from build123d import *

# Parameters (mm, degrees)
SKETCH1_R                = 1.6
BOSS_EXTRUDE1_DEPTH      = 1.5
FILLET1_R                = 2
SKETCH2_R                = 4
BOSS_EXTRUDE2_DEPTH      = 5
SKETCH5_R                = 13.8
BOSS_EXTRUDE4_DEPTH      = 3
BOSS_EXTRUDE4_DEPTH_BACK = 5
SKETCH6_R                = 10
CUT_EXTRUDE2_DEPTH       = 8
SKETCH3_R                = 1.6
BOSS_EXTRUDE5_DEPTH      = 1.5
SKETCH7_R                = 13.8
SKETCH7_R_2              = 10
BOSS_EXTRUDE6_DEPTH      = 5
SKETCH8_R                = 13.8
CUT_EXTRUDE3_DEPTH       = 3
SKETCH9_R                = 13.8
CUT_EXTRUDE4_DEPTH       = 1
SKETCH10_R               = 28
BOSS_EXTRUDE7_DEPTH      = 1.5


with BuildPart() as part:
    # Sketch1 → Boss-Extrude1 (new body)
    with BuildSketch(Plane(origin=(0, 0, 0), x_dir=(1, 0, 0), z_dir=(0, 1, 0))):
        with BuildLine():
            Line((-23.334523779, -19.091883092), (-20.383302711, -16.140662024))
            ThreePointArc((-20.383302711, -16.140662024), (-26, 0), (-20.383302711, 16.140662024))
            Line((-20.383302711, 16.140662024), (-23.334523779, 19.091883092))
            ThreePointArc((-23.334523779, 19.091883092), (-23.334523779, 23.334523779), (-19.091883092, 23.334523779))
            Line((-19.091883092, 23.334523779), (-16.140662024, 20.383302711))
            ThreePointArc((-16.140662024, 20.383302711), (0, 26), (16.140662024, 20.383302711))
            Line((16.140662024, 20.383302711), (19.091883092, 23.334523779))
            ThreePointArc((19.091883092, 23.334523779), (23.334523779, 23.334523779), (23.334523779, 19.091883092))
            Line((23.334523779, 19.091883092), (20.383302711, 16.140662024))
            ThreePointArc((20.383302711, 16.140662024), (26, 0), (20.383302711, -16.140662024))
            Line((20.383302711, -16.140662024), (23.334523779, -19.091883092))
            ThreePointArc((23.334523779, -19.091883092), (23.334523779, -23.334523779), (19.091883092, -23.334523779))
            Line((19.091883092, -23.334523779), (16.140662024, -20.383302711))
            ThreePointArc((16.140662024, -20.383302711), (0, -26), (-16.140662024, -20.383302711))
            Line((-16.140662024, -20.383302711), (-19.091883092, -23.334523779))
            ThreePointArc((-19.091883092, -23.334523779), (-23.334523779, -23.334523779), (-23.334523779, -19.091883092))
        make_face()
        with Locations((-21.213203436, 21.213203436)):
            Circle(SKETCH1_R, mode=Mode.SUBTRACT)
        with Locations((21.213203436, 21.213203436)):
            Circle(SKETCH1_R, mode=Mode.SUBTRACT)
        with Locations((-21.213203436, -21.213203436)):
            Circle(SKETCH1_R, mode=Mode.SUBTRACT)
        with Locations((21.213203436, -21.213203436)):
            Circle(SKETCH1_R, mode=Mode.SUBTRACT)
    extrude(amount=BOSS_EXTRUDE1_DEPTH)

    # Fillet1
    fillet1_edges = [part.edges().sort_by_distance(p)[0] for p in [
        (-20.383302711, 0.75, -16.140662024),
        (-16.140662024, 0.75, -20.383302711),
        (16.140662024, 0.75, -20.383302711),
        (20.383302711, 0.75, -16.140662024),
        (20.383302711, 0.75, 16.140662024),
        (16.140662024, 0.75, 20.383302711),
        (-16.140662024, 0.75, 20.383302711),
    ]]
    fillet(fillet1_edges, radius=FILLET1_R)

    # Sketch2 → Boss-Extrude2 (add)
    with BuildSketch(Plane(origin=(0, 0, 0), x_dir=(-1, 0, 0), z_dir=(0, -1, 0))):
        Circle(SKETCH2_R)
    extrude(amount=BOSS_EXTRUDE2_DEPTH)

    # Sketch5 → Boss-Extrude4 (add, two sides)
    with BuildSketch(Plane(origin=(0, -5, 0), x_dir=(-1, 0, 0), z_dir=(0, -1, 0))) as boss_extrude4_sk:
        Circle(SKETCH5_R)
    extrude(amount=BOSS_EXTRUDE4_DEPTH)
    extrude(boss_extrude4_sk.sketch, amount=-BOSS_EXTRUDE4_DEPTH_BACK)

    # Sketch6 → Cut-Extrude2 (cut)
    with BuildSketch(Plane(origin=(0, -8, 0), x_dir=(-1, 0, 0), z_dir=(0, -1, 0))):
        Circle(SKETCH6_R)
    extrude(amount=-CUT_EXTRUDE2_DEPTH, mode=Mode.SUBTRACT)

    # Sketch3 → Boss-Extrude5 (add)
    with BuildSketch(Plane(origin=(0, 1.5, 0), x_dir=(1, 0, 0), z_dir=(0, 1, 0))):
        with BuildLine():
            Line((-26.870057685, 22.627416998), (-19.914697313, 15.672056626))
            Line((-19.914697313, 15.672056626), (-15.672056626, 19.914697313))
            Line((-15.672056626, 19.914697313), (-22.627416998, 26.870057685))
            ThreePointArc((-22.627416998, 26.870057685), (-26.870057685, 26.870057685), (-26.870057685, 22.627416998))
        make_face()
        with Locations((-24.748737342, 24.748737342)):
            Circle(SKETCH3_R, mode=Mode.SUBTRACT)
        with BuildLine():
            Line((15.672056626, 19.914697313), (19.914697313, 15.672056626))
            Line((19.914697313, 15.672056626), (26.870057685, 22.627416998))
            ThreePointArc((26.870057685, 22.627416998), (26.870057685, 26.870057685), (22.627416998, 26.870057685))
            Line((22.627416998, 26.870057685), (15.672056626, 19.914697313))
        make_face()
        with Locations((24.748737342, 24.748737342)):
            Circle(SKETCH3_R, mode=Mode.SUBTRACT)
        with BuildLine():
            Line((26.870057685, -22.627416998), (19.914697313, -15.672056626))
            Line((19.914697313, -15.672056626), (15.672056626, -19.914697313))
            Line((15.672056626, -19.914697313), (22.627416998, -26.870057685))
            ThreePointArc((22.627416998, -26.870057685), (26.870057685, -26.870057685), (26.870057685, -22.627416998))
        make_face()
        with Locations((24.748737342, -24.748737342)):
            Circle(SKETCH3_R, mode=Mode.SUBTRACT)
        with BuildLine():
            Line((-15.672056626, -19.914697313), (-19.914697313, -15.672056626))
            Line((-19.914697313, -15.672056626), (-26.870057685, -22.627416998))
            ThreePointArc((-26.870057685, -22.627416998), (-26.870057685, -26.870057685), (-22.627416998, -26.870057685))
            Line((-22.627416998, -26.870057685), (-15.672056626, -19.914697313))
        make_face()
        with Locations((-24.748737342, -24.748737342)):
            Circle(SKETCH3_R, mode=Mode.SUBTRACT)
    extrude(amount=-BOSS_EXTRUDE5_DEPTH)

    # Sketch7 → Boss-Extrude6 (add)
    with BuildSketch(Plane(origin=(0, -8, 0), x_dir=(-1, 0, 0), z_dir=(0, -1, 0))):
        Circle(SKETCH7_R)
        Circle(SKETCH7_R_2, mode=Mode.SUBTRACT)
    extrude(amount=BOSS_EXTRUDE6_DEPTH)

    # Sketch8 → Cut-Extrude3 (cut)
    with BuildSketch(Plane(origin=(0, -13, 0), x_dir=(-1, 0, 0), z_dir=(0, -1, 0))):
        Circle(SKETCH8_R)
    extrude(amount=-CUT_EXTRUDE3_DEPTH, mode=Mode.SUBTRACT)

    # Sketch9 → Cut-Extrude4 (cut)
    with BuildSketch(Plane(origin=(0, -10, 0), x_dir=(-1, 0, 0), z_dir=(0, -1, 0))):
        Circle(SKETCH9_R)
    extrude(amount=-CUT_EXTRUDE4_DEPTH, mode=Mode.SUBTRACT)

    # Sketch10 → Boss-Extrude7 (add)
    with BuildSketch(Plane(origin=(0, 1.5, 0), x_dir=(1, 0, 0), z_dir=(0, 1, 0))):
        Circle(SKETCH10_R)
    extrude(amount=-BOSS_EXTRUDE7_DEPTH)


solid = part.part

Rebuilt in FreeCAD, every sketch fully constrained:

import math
import FreeCAD as App
import Part
import Sketcher
from FreeCAD import Vector
Q = App.Units.Quantity


def edges_at(feature, points):
    """Names of the edges that pass closest to the given points."""
    edges = feature.Shape.Edges
    near = lambda p: min(range(len(edges)), key=lambda i: edges[i].distToShape(Part.Vertex(*p))[0])
    return sorted({f"Edge{near(p) + 1}" for p in points})

doc = App.newDocument("Part")
body = doc.addObject("PartDesign::Body", "Body")

# Sketch on XZ plane
sketch1 = body.newObject("Sketcher::SketchObject", "Sketch")
sketch1.AttachmentSupport = (doc.getObject("XZ_Plane"), [""])
sketch1.MapMode = "FlatFace"
sketch1.addGeometry([
    Part.LineSegment(Vector(-20.383303, 16.140662, 0), Vector(-23.334524, 19.091883, 0)),  # 0
    Part.ArcOfCircle(Part.Circle(Vector(-21.213203, 21.213203, 0), Vector(0, 0, 1), 3), math.radians(45), math.radians(225)),  # 1
    Part.LineSegment(Vector(-19.091883, 23.334524, 0), Vector(-16.140662, 20.383303, 0)),  # 2
    Part.ArcOfCircle(Part.Circle(Vector(0, 0, 0), Vector(0, 0, 1), 26), math.radians(51.62581), math.radians(128.37419)),  # 3
    Part.LineSegment(Vector(16.140662, 20.383303, 0), Vector(19.091883, 23.334524, 0)),  # 4
    Part.ArcOfCircle(Part.Circle(Vector(21.213203, 21.213203, 0), Vector(0, 0, 1), 3), math.radians(-45), math.radians(135)),  # 5
    Part.LineSegment(Vector(23.334524, 19.091883, 0), Vector(20.383303, 16.140662, 0)),  # 6
    Part.ArcOfCircle(Part.Circle(Vector(0, 0, 0), Vector(0, 0, 1), 26), math.radians(-38.37419), math.radians(38.37419)),  # 7
    Part.LineSegment(Vector(20.383303, -16.140662, 0), Vector(23.334524, -19.091883, 0)),  # 8
    Part.ArcOfCircle(Part.Circle(Vector(21.213203, -21.213203, 0), Vector(0, 0, 1), 3), math.radians(-135), math.radians(45)),  # 9
    Part.LineSegment(Vector(19.091883, -23.334524, 0), Vector(16.140662, -20.383303, 0)),  # 10
    Part.ArcOfCircle(Part.Circle(Vector(0, 0, 0), Vector(0, 0, 1), 26), math.radians(-128.37419), math.radians(-51.62581)),  # 11
    Part.LineSegment(Vector(-16.140662, -20.383303, 0), Vector(-19.091883, -23.334524, 0)),  # 12
    Part.ArcOfCircle(Part.Circle(Vector(-21.213203, -21.213203, 0), Vector(0, 0, 1), 3), math.radians(135), math.radians(315)),  # 13
    Part.LineSegment(Vector(-23.334524, -19.091883, 0), Vector(-20.383303, -16.140662, 0)),  # 14
    Part.ArcOfCircle(Part.Circle(Vector(0, 0, 0), Vector(0, 0, 1), 26), math.radians(141.62581), math.radians(218.37419)),  # 15
    Part.Circle(Vector(21.213203, 21.213203, 0), Vector(0, 0, 1), 1.6),  # 16
    Part.Circle(Vector(-21.213203, 21.213203, 0), Vector(0, 0, 1), 1.6),  # 17
    Part.Circle(Vector(21.213203, -21.213203, 0), Vector(0, 0, 1), 1.6),  # 18
    Part.Circle(Vector(-21.213203, -21.213203, 0), Vector(0, 0, 1), 1.6),  # 19
], False)
sketch1.addConstraint([
    Sketcher.Constraint("Tangent", 0, 2, 1, 2),
    Sketcher.Constraint("Tangent", 1, 1, 2, 1),
    Sketcher.Constraint("Coincident", 2, 2, 3, 2),
    Sketcher.Constraint("Coincident", 3, 1, 4, 1),
    Sketcher.Constraint("Tangent", 4, 2, 5, 2),
    Sketcher.Constraint("Tangent", 5, 1, 6, 1),
    Sketcher.Constraint("Coincident", 6, 2, 7, 2),
    Sketcher.Constraint("Coincident", 7, 1, 8, 1),
    Sketcher.Constraint("Tangent", 8, 2, 9, 2),
    Sketcher.Constraint("Tangent", 9, 1, 10, 1),
    Sketcher.Constraint("Coincident", 10, 2, 11, 2),
    Sketcher.Constraint("Coincident", 11, 1, 12, 1),
    Sketcher.Constraint("Tangent", 12, 2, 13, 2),
    Sketcher.Constraint("Tangent", 13, 1, 14, 1),
    Sketcher.Constraint("Coincident", 14, 2, 15, 2),
    Sketcher.Constraint("Coincident", 15, 1, 0, 1),
    Sketcher.Constraint("Coincident", 3, 3, -1, 1),
    Sketcher.Constraint("Coincident", 7, 3, -1, 1),
    Sketcher.Constraint("Coincident", 11, 3, -1, 1),
    Sketcher.Constraint("Coincident", 15, 3, -1, 1),
    Sketcher.Constraint("Coincident", 16, 3, 5, 3),
    Sketcher.Constraint("Coincident", 17, 3, 1, 3),
    Sketcher.Constraint("Coincident", 18, 3, 9, 3),
    Sketcher.Constraint("Coincident", 19, 3, 13, 3),
    Sketcher.Constraint("Equal", 1, 5),
    Sketcher.Constraint("Equal", 3, 7),
    Sketcher.Constraint("Equal", 5, 9),
    Sketcher.Constraint("Equal", 7, 11),
    Sketcher.Constraint("Equal", 9, 13),
    Sketcher.Constraint("Equal", 11, 15),
    Sketcher.Constraint("Equal", 16, 17),
    Sketcher.Constraint("Equal", 17, 18),
    Sketcher.Constraint("Equal", 18, 19),
    Sketcher.Constraint("Symmetric", 1, 3, 9, 3, -1, 1),
    Sketcher.Constraint("Symmetric", 5, 3, 13, 3, -1, 1),
    Sketcher.Constraint("Symmetric", 1, 3, 5, 3, -2),
    Sketcher.Constraint("Parallel", 0, 2),
    Sketcher.Constraint("Perpendicular", 2, 4),
    Sketcher.Constraint("Parallel", 4, 6),
    Sketcher.Constraint("Perpendicular", 6, 8),
    Sketcher.Constraint("Parallel", 8, 10),
    Sketcher.Constraint("Perpendicular", 10, 12),
    Sketcher.Constraint("Parallel", 12, 14),
    Sketcher.Constraint("Horizontal", 2, 2, 3, 1),
    Sketcher.Constraint("Equal", 0, 2),
    Sketcher.Constraint("Radius", 1, Q("3 mm")),
    Sketcher.Constraint("Radius", 3, Q("26 mm")),
    Sketcher.Constraint("Diameter", 16, Q("3.2 mm")),
    Sketcher.Constraint("DistanceY", 2, 2, 1, 3, Q("0.829901 mm")),
])
pad1 = body.newObject("PartDesign::Pad", "Pad")
pad1.Profile = sketch1
pad1.Length = 1.5
pad1.Reversed = True
doc.recompute()

fillet = body.newObject("PartDesign::Fillet", "Fillet")
fillet.Base = (pad1, edges_at(pad1, [
    (-20.383, 0.75, -16.141),
    (-16.141, 0.75, -20.383),
    (16.141, 0.75, -20.383),
    (20.383, 0.75, -16.141),
    (20.383, 0.75, 16.141),
    (16.141, 0.75, 20.383),
    (-16.141, 0.75, 20.383),
]))
fillet.Radius = 2

# Sketch on XZ plane
sketch2 = body.newObject("Sketcher::SketchObject", "Sketch001")
sketch2.AttachmentSupport = (doc.getObject("XZ_Plane"), [""])
sketch2.MapMode = "FlatFace"
sketch2.addGeometry(Part.Circle(Vector(0, 0, 0), Vector(0, 0, 1), 4), False)
sketch2.addConstraint([
    Sketcher.Constraint("Coincident", 0, 3, -1, 1),
    Sketcher.Constraint("Diameter", 0, Q("8 mm")),
])
pad2 = body.newObject("PartDesign::Pad", "Pad001")
pad2.Profile = sketch2
pad2.Length = 5

# Sketch on XZ plane
sketch3 = body.newObject("Sketcher::SketchObject", "Sketch002")
sketch3.AttachmentSupport = (doc.getObject("XZ_Plane"), [""])
sketch3.MapMode = "FlatFace"
sketch3.AttachmentOffset = App.Placement(Vector(0, 0, 5), App.Rotation())
sketch3.addGeometry(Part.Circle(Vector(0, 0, 0), Vector(0, 0, 1), 13.8), False)
sketch3.addConstraint([
    Sketcher.Constraint("Coincident", 0, 3, -1, 1),
    Sketcher.Constraint("Diameter", 0, Q("27.6 mm")),
])
pad3 = body.newObject("PartDesign::Pad", "Pad002")
pad3.Profile = sketch3
pad3.Type = "TwoLengths"
pad3.Length = 3
pad3.Length2 = 5

# Sketch on XZ plane
sketch4 = body.newObject("Sketcher::SketchObject", "Sketch003")
sketch4.AttachmentSupport = (doc.getObject("XZ_Plane"), [""])
sketch4.MapMode = "FlatFace"
sketch4.AttachmentOffset = App.Placement(Vector(0, 0, 8), App.Rotation())
sketch4.addGeometry(Part.Circle(Vector(0, 0, 0), Vector(0, 0, 1), 10), False)
sketch4.addConstraint([
    Sketcher.Constraint("Coincident", 0, 3, -1, 1),
    Sketcher.Constraint("Diameter", 0, Q("20 mm")),
])
pocket1 = body.newObject("PartDesign::Pocket", "Pocket")
pocket1.Profile = sketch4
pocket1.Length = 8

# Sketch on XZ plane
sketch5 = body.newObject("Sketcher::SketchObject", "Sketch004")
sketch5.AttachmentSupport = (doc.getObject("XZ_Plane"), [""])
sketch5.MapMode = "FlatFace"
sketch5.AttachmentOffset = App.Placement(Vector(0, 0, -1.5), App.Rotation())
sketch5.addGeometry([
    Part.LineSegment(Vector(-26.870058, -22.627417, 0), Vector(-19.914697, -15.672057, 0)),  # 0
    Part.LineSegment(Vector(-19.914697, -15.672057, 0), Vector(-15.672057, -19.914697, 0)),  # 1
    Part.LineSegment(Vector(-15.672057, -19.914697, 0), Vector(-22.627417, -26.870058, 0)),  # 2
    Part.ArcOfCircle(Part.Circle(Vector(-24.748737, -24.748737, 0), Vector(0, 0, 1), 3), math.radians(135), math.radians(315)),  # 3
    Part.Circle(Vector(-24.748737, -24.748737, 0), Vector(0, 0, 1), 1.6),  # 4
    Part.LineSegment(Vector(15.672057, -19.914697, 0), Vector(19.914697, -15.672057, 0)),  # 5
    Part.LineSegment(Vector(19.914697, -15.672057, 0), Vector(26.870058, -22.627417, 0)),  # 6
    Part.ArcOfCircle(Part.Circle(Vector(24.748737, -24.748737, 0), Vector(0, 0, 1), 3), math.radians(-135), math.radians(45)),  # 7
    Part.LineSegment(Vector(22.627417, -26.870058, 0), Vector(15.672057, -19.914697, 0)),  # 8
    Part.Circle(Vector(24.748737, -24.748737, 0), Vector(0, 0, 1), 1.6),  # 9
    Part.LineSegment(Vector(26.870058, 22.627417, 0), Vector(19.914697, 15.672057, 0)),  # 10
    Part.LineSegment(Vector(19.914697, 15.672057, 0), Vector(15.672057, 19.914697, 0)),  # 11
    Part.LineSegment(Vector(15.672057, 19.914697, 0), Vector(22.627417, 26.870058, 0)),  # 12
    Part.ArcOfCircle(Part.Circle(Vector(24.748737, 24.748737, 0), Vector(0, 0, 1), 3), math.radians(-45), math.radians(135)),  # 13
    Part.Circle(Vector(24.748737, 24.748737, 0), Vector(0, 0, 1), 1.6),  # 14
    Part.LineSegment(Vector(-15.672057, 19.914697, 0), Vector(-19.914697, 15.672057, 0)),  # 15
    Part.LineSegment(Vector(-19.914697, 15.672057, 0), Vector(-26.870058, 22.627417, 0)),  # 16
    Part.ArcOfCircle(Part.Circle(Vector(-24.748737, 24.748737, 0), Vector(0, 0, 1), 3), math.radians(45), math.radians(225)),  # 17
    Part.LineSegment(Vector(-22.627417, 26.870058, 0), Vector(-15.672057, 19.914697, 0)),  # 18
    Part.Circle(Vector(-24.748737, 24.748737, 0), Vector(0, 0, 1), 1.6),  # 19
], False)
sketch5.addConstraint([
    Sketcher.Constraint("Coincident", 0, 2, 1, 1),
    Sketcher.Constraint("Coincident", 1, 2, 2, 1),
    Sketcher.Constraint("Tangent", 2, 2, 3, 2),
    Sketcher.Constraint("Tangent", 3, 1, 0, 1),
    Sketcher.Constraint("Coincident", 5, 2, 6, 1),
    Sketcher.Constraint("Tangent", 6, 2, 7, 2),
    Sketcher.Constraint("Tangent", 7, 1, 8, 1),
    Sketcher.Constraint("Coincident", 8, 2, 5, 1),
    Sketcher.Constraint("Coincident", 10, 2, 11, 1),
    Sketcher.Constraint("Coincident", 11, 2, 12, 1),
    Sketcher.Constraint("Tangent", 12, 2, 13, 2),
    Sketcher.Constraint("Tangent", 13, 1, 10, 1),
    Sketcher.Constraint("Coincident", 15, 2, 16, 1),
    Sketcher.Constraint("Tangent", 16, 2, 17, 2),
    Sketcher.Constraint("Tangent", 17, 1, 18, 1),
    Sketcher.Constraint("Coincident", 18, 2, 15, 1),
    Sketcher.Constraint("Coincident", 4, 3, 3, 3),
    Sketcher.Constraint("Coincident", 9, 3, 7, 3),
    Sketcher.Constraint("Coincident", 14, 3, 13, 3),
    Sketcher.Constraint("Coincident", 19, 3, 17, 3),
    Sketcher.Constraint("Equal", 3, 7),
    Sketcher.Constraint("Equal", 4, 9),
    Sketcher.Constraint("Equal", 7, 13),
    Sketcher.Constraint("Equal", 9, 14),
    Sketcher.Constraint("Equal", 13, 17),
    Sketcher.Constraint("Equal", 14, 19),
    Sketcher.Constraint("Symmetric", 3, 3, 13, 3, -1, 1),
    Sketcher.Constraint("Symmetric", 7, 3, 17, 3, -1, 1),
    Sketcher.Constraint("Symmetric", 0, 2, 10, 2, -1, 1),
    Sketcher.Constraint("Symmetric", 1, 2, 11, 2, -1, 1),
    Sketcher.Constraint("Symmetric", 5, 2, 15, 2, -1, 1),
    Sketcher.Constraint("Symmetric", 8, 2, 18, 2, -1, 1),
    Sketcher.Constraint("Symmetric", 3, 3, 7, 3, -2),
    Sketcher.Constraint("Symmetric", 0, 2, 5, 2, -2),
    Sketcher.Constraint("Symmetric", 1, 2, 8, 2, -2),
    Sketcher.Constraint("Perpendicular", 0, 1),
    Sketcher.Constraint("Perpendicular", 1, 2),
    Sketcher.Constraint("Parallel", 2, 5),
    Sketcher.Constraint("Radius", 3, Q("3 mm")),
    Sketcher.Constraint("Diameter", 4, Q("3.2 mm")),
    Sketcher.Constraint("DistanceY", 2, 2, 0, 2, Q("11.198001 mm")),
    Sketcher.Constraint("DistanceX", 3, 3, -1, 1, Q("24.748737 mm")),
    Sketcher.Constraint("DistanceY", 3, 3, -1, 1, Q("24.748737 mm")),
])
pad4 = body.newObject("PartDesign::Pad", "Pad003")
pad4.Profile = sketch5
pad4.Length = 1.5

# Sketch on XZ plane
sketch6 = body.newObject("Sketcher::SketchObject", "Sketch005")
sketch6.AttachmentSupport = (doc.getObject("XZ_Plane"), [""])
sketch6.MapMode = "FlatFace"
sketch6.AttachmentOffset = App.Placement(Vector(0, 0, 8), App.Rotation())
sketch6.addGeometry([
    Part.Circle(Vector(0, 0, 0), Vector(0, 0, 1), 13.8),
    Part.Circle(Vector(0, 0, 0), Vector(0, 0, 1), 10),
], False)
sketch6.addConstraint([
    Sketcher.Constraint("Coincident", 0, 3, -1, 1),
    Sketcher.Constraint("Coincident", 1, 3, -1, 1),
    Sketcher.Constraint("Diameter", 1, Q("20 mm")),
    Sketcher.Constraint("Diameter", 0, Q("27.6 mm")),
])
pad5 = body.newObject("PartDesign::Pad", "Pad004")
pad5.Profile = sketch6
pad5.Length = 5

# Sketch on XZ plane
sketch7 = body.newObject("Sketcher::SketchObject", "Sketch006")
sketch7.AttachmentSupport = (doc.getObject("XZ_Plane"), [""])
sketch7.MapMode = "FlatFace"
sketch7.AttachmentOffset = App.Placement(Vector(0, 0, 13), App.Rotation())
sketch7.addGeometry(Part.Circle(Vector(0, 0, 0), Vector(0, 0, 1), 13.8), False)
sketch7.addConstraint([
    Sketcher.Constraint("Coincident", 0, 3, -1, 1),
    Sketcher.Constraint("Diameter", 0, Q("27.6 mm")),
])
pocket2 = body.newObject("PartDesign::Pocket", "Pocket001")
pocket2.Profile = sketch7
pocket2.Length = 3

# Sketch on XZ plane
sketch8 = body.newObject("Sketcher::SketchObject", "Sketch007")
sketch8.AttachmentSupport = (doc.getObject("XZ_Plane"), [""])
sketch8.MapMode = "FlatFace"
sketch8.AttachmentOffset = App.Placement(Vector(0, 0, 10), App.Rotation())
sketch8.addGeometry(Part.Circle(Vector(0, 0, 0), Vector(0, 0, 1), 13.8), False)
sketch8.addConstraint([
    Sketcher.Constraint("Coincident", 0, 3, -1, 1),
    Sketcher.Constraint("Diameter", 0, Q("27.6 mm")),
])
pocket3 = body.newObject("PartDesign::Pocket", "Pocket002")
pocket3.Profile = sketch8
pocket3.Length = 1

# Sketch on XZ plane
sketch9 = body.newObject("Sketcher::SketchObject", "Sketch008")
sketch9.AttachmentSupport = (doc.getObject("XZ_Plane"), [""])
sketch9.MapMode = "FlatFace"
sketch9.AttachmentOffset = App.Placement(Vector(0, 0, -1.5), App.Rotation())
sketch9.addGeometry(Part.Circle(Vector(0, 0, 0), Vector(0, 0, 1), 28), False)
sketch9.addConstraint([
    Sketcher.Constraint("Coincident", 0, 3, -1, 1),
    Sketcher.Constraint("Diameter", 0, Q("56 mm")),
])
pad6 = body.newObject("PartDesign::Pad", "Pad005")
pad6.Profile = sketch9
pad6.Length = 1.5

doc.recompute()
